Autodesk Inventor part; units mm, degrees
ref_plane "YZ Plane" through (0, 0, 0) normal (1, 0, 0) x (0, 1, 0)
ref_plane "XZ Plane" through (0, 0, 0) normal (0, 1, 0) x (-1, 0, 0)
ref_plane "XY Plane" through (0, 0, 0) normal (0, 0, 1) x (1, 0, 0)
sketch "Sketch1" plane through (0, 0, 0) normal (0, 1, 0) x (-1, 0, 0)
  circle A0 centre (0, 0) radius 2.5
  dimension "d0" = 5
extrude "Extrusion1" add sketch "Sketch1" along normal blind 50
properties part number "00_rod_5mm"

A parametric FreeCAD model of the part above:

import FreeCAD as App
import Part
import Sketcher
Q = App.Units.Quantity

doc = App.newDocument("Part")
body = doc.addObject("PartDesign::Body", "Body")

sketch1 = body.newObject("Sketcher::SketchObject", "Sketch")
sketch1.AttachmentSupport = (doc.getObject("XZ_Plane"), [""])
sketch1.MapMode = "FlatFace"
sketch1.addGeometry(Part.Circle(App.Vector(0, 0, 0), App.Vector(0, 0, 1), 2.5), False)
sketch1.addConstraint(Sketcher.Constraint("Coincident", 0, 3, -1, 1))
sketch1.addConstraint(Sketcher.Constraint("Diameter", 0, Q("5 mm")))
pad1 = body.newObject("PartDesign::Pad", "Pad")
pad1.Profile = sketch1
pad1.Length = 50
pad1.Reversed = True

doc.recompute()
